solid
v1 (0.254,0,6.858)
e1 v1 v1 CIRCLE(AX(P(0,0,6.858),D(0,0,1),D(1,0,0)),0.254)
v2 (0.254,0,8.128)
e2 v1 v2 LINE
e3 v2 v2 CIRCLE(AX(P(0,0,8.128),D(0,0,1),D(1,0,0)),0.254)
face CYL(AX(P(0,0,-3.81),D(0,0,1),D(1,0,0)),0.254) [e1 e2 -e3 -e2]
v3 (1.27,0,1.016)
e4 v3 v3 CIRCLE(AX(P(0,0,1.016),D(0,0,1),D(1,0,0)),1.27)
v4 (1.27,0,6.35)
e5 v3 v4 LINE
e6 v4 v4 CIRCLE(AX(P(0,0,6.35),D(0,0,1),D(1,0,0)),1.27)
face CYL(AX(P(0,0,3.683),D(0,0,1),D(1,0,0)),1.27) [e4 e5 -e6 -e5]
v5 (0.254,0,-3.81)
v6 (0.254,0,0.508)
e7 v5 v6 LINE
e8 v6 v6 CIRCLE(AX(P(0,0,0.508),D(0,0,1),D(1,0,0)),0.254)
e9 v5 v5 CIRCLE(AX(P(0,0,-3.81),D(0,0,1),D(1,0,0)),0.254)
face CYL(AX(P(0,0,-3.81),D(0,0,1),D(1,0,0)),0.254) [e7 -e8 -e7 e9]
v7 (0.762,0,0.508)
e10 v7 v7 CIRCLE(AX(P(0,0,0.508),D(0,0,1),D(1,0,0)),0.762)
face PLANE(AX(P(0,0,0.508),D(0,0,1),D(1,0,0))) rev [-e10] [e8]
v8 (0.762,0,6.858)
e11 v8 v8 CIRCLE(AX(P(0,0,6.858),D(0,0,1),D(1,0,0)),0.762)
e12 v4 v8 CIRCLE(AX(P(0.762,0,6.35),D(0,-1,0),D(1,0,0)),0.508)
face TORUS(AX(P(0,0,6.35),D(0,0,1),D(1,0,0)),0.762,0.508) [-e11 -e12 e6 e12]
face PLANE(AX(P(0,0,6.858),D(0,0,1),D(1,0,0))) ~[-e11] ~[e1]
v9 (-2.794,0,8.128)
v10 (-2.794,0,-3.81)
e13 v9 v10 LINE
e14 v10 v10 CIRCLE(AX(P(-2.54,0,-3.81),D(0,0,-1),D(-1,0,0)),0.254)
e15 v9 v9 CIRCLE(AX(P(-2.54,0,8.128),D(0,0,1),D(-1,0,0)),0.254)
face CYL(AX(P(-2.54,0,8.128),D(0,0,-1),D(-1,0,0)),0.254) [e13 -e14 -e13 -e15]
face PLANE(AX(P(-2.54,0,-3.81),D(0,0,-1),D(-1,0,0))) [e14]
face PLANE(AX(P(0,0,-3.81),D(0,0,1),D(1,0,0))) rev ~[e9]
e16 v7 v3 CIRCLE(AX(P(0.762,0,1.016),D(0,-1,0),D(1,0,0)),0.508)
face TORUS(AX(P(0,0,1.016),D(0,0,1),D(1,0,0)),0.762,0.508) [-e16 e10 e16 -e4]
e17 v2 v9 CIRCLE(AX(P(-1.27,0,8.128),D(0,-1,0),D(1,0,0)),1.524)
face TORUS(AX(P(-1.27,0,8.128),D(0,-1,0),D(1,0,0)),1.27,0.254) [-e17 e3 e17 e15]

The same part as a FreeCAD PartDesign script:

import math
import FreeCAD as App
import Part
import Sketcher
Q = App.Units.Quantity


def edges_at(feature, points):
    """Names of the edges that pass closest to the given points."""
    edges = feature.Shape.Edges
    near = lambda p: min(range(len(edges)), key=lambda i: edges[i].distToShape(Part.Vertex(*p))[0])
    return sorted({f"Edge{near(p) + 1}" for p in points})


def add_polygon(sketch, points):
    """Adds a closed chain of lines whose ends are joined by coincident constraints."""
    first, n = sketch.GeometryCount, len(points)
    for a, b in zip(points, points[1:] + points[:1]):
        sketch.addGeometry(Part.LineSegment(App.Vector(*a, 0), App.Vector(*b, 0)), False)
    for i in range(n):
        sketch.addConstraint(Sketcher.Constraint("Coincident", first + i, 2, first + (i + 1) % n, 1))

doc = App.newDocument("Part")
body = doc.addObject("PartDesign::Body", "Body")

# Sketch on XZ plane
sketch1 = body.newObject("Sketcher::SketchObject", "Sketch")
sketch1.AttachmentSupport = (doc.getObject("XZ_Plane"), [""])
sketch1.MapMode = "FlatFace"
add_polygon(sketch1, [(0, 6.858), (0, 0.508), (1.27, 0.508), (1.27, 6.858)])  # lines 0-3
sketch1.addConstraint(Sketcher.Constraint("Vertical", 0))
sketch1.addConstraint(Sketcher.Constraint("Horizontal", 1))
sketch1.addConstraint(Sketcher.Constraint("Vertical", 2))
sketch1.addConstraint(Sketcher.Constraint("Horizontal", 3))
sketch1.addConstraint(Sketcher.Constraint("PointOnObject", 0, 2, -2))
sketch1.addConstraint(Sketcher.Constraint("DistanceX", 1, 1, 1, 2, Q("0.05 in")))
sketch1.addConstraint(Sketcher.Constraint("DistanceY", 0, 2, 0, 1, Q("0.25 in")))
sketch1.addConstraint(Sketcher.Constraint("DistanceY", -1, 1, 0, 2, Q("0.02 in")))
revolution = body.newObject("PartDesign::Revolution", "Revolution")
revolution.Profile = sketch1
revolution.ReferenceAxis = (sketch1, ["V_Axis"])
revolution.Angle = 360
doc.recompute()

fillet = body.newObject("PartDesign::Fillet", "Fillet")
fillet.Base = (revolution, edges_at(revolution, [(-1.27, 0, 6.858), (-1.27, 0, 0.508)]))
fillet.Radius = Q("0.02 in")

# Sketch on XY plane
sketch2 = body.newObject("Sketcher::SketchObject", "Sketch001")
sketch2.AttachmentSupport = (doc.getObject("XY_Plane"), [""])
sketch2.MapMode = "FlatFace"
sketch2.AttachmentOffset = App.Placement(App.Vector(0, 0, -0.15 * 25.4), App.Rotation())
sketch2.addGeometry(Part.Circle(App.Vector(0, 0, 0), App.Vector(0, 0, 1), 0.254), False)
sketch2.addConstraint(Sketcher.Constraint("Coincident", 0, 3, -1, 1))
sketch2.addConstraint(Sketcher.Constraint("Diameter", 0, Q("0.02 in")))

# Sketch on XZ plane
sketch3 = body.newObject("Sketcher::SketchObject", "Sketch002")
sketch3.AttachmentSupport = (doc.getObject("XZ_Plane"), [""])
sketch3.MapMode = "FlatFace"
sketch3.addGeometry(Part.LineSegment(App.Vector(0, -3.81, 0), App.Vector(0, 8.128, 0)), False)
sketch3.addGeometry(Part.ArcOfCircle(Part.Circle(App.Vector(-1.27, 8.128, 0), App.Vector(0, 0, 1), 1.27), math.radians(0), math.radians(180)), False)
sketch3.addGeometry(Part.LineSegment(App.Vector(-2.54, 8.128, 0), App.Vector(-2.54, -3.81, 0)), False)
sketch3.addConstraint(Sketcher.Constraint("Tangent", 0, 2, 1, 1))
sketch3.addConstraint(Sketcher.Constraint("Tangent", 1, 2, 2, 1))
sketch3.addConstraint(Sketcher.Constraint("Vertical", 0))
sketch3.addConstraint(Sketcher.Constraint("Vertical", 2))
sketch3.addConstraint(Sketcher.Constraint("PointOnObject", 0, 1, -2))
sketch3.addConstraint(Sketcher.Constraint("Horizontal", 0, 1, 2, 2))
sketch3.addConstraint(Sketcher.Constraint("Radius", 1, Q("0.05 in")))
sketch3.addConstraint(Sketcher.Constraint("DistanceY", 0, 1, 0, 2, Q("0.47 in")))
sketch3.addConstraint(Sketcher.Constraint("DistanceY", -1, 1, 1, 3, Q("0.32 in")))
doc.recompute()

additivepipe = body.newObject("PartDesign::AdditivePipe", "AdditivePipe")
additivepipe.Profile = sketch2
additivepipe.Spine = (sketch3, ["Edge1", "Edge2", "Edge3"])

doc.recompute()
